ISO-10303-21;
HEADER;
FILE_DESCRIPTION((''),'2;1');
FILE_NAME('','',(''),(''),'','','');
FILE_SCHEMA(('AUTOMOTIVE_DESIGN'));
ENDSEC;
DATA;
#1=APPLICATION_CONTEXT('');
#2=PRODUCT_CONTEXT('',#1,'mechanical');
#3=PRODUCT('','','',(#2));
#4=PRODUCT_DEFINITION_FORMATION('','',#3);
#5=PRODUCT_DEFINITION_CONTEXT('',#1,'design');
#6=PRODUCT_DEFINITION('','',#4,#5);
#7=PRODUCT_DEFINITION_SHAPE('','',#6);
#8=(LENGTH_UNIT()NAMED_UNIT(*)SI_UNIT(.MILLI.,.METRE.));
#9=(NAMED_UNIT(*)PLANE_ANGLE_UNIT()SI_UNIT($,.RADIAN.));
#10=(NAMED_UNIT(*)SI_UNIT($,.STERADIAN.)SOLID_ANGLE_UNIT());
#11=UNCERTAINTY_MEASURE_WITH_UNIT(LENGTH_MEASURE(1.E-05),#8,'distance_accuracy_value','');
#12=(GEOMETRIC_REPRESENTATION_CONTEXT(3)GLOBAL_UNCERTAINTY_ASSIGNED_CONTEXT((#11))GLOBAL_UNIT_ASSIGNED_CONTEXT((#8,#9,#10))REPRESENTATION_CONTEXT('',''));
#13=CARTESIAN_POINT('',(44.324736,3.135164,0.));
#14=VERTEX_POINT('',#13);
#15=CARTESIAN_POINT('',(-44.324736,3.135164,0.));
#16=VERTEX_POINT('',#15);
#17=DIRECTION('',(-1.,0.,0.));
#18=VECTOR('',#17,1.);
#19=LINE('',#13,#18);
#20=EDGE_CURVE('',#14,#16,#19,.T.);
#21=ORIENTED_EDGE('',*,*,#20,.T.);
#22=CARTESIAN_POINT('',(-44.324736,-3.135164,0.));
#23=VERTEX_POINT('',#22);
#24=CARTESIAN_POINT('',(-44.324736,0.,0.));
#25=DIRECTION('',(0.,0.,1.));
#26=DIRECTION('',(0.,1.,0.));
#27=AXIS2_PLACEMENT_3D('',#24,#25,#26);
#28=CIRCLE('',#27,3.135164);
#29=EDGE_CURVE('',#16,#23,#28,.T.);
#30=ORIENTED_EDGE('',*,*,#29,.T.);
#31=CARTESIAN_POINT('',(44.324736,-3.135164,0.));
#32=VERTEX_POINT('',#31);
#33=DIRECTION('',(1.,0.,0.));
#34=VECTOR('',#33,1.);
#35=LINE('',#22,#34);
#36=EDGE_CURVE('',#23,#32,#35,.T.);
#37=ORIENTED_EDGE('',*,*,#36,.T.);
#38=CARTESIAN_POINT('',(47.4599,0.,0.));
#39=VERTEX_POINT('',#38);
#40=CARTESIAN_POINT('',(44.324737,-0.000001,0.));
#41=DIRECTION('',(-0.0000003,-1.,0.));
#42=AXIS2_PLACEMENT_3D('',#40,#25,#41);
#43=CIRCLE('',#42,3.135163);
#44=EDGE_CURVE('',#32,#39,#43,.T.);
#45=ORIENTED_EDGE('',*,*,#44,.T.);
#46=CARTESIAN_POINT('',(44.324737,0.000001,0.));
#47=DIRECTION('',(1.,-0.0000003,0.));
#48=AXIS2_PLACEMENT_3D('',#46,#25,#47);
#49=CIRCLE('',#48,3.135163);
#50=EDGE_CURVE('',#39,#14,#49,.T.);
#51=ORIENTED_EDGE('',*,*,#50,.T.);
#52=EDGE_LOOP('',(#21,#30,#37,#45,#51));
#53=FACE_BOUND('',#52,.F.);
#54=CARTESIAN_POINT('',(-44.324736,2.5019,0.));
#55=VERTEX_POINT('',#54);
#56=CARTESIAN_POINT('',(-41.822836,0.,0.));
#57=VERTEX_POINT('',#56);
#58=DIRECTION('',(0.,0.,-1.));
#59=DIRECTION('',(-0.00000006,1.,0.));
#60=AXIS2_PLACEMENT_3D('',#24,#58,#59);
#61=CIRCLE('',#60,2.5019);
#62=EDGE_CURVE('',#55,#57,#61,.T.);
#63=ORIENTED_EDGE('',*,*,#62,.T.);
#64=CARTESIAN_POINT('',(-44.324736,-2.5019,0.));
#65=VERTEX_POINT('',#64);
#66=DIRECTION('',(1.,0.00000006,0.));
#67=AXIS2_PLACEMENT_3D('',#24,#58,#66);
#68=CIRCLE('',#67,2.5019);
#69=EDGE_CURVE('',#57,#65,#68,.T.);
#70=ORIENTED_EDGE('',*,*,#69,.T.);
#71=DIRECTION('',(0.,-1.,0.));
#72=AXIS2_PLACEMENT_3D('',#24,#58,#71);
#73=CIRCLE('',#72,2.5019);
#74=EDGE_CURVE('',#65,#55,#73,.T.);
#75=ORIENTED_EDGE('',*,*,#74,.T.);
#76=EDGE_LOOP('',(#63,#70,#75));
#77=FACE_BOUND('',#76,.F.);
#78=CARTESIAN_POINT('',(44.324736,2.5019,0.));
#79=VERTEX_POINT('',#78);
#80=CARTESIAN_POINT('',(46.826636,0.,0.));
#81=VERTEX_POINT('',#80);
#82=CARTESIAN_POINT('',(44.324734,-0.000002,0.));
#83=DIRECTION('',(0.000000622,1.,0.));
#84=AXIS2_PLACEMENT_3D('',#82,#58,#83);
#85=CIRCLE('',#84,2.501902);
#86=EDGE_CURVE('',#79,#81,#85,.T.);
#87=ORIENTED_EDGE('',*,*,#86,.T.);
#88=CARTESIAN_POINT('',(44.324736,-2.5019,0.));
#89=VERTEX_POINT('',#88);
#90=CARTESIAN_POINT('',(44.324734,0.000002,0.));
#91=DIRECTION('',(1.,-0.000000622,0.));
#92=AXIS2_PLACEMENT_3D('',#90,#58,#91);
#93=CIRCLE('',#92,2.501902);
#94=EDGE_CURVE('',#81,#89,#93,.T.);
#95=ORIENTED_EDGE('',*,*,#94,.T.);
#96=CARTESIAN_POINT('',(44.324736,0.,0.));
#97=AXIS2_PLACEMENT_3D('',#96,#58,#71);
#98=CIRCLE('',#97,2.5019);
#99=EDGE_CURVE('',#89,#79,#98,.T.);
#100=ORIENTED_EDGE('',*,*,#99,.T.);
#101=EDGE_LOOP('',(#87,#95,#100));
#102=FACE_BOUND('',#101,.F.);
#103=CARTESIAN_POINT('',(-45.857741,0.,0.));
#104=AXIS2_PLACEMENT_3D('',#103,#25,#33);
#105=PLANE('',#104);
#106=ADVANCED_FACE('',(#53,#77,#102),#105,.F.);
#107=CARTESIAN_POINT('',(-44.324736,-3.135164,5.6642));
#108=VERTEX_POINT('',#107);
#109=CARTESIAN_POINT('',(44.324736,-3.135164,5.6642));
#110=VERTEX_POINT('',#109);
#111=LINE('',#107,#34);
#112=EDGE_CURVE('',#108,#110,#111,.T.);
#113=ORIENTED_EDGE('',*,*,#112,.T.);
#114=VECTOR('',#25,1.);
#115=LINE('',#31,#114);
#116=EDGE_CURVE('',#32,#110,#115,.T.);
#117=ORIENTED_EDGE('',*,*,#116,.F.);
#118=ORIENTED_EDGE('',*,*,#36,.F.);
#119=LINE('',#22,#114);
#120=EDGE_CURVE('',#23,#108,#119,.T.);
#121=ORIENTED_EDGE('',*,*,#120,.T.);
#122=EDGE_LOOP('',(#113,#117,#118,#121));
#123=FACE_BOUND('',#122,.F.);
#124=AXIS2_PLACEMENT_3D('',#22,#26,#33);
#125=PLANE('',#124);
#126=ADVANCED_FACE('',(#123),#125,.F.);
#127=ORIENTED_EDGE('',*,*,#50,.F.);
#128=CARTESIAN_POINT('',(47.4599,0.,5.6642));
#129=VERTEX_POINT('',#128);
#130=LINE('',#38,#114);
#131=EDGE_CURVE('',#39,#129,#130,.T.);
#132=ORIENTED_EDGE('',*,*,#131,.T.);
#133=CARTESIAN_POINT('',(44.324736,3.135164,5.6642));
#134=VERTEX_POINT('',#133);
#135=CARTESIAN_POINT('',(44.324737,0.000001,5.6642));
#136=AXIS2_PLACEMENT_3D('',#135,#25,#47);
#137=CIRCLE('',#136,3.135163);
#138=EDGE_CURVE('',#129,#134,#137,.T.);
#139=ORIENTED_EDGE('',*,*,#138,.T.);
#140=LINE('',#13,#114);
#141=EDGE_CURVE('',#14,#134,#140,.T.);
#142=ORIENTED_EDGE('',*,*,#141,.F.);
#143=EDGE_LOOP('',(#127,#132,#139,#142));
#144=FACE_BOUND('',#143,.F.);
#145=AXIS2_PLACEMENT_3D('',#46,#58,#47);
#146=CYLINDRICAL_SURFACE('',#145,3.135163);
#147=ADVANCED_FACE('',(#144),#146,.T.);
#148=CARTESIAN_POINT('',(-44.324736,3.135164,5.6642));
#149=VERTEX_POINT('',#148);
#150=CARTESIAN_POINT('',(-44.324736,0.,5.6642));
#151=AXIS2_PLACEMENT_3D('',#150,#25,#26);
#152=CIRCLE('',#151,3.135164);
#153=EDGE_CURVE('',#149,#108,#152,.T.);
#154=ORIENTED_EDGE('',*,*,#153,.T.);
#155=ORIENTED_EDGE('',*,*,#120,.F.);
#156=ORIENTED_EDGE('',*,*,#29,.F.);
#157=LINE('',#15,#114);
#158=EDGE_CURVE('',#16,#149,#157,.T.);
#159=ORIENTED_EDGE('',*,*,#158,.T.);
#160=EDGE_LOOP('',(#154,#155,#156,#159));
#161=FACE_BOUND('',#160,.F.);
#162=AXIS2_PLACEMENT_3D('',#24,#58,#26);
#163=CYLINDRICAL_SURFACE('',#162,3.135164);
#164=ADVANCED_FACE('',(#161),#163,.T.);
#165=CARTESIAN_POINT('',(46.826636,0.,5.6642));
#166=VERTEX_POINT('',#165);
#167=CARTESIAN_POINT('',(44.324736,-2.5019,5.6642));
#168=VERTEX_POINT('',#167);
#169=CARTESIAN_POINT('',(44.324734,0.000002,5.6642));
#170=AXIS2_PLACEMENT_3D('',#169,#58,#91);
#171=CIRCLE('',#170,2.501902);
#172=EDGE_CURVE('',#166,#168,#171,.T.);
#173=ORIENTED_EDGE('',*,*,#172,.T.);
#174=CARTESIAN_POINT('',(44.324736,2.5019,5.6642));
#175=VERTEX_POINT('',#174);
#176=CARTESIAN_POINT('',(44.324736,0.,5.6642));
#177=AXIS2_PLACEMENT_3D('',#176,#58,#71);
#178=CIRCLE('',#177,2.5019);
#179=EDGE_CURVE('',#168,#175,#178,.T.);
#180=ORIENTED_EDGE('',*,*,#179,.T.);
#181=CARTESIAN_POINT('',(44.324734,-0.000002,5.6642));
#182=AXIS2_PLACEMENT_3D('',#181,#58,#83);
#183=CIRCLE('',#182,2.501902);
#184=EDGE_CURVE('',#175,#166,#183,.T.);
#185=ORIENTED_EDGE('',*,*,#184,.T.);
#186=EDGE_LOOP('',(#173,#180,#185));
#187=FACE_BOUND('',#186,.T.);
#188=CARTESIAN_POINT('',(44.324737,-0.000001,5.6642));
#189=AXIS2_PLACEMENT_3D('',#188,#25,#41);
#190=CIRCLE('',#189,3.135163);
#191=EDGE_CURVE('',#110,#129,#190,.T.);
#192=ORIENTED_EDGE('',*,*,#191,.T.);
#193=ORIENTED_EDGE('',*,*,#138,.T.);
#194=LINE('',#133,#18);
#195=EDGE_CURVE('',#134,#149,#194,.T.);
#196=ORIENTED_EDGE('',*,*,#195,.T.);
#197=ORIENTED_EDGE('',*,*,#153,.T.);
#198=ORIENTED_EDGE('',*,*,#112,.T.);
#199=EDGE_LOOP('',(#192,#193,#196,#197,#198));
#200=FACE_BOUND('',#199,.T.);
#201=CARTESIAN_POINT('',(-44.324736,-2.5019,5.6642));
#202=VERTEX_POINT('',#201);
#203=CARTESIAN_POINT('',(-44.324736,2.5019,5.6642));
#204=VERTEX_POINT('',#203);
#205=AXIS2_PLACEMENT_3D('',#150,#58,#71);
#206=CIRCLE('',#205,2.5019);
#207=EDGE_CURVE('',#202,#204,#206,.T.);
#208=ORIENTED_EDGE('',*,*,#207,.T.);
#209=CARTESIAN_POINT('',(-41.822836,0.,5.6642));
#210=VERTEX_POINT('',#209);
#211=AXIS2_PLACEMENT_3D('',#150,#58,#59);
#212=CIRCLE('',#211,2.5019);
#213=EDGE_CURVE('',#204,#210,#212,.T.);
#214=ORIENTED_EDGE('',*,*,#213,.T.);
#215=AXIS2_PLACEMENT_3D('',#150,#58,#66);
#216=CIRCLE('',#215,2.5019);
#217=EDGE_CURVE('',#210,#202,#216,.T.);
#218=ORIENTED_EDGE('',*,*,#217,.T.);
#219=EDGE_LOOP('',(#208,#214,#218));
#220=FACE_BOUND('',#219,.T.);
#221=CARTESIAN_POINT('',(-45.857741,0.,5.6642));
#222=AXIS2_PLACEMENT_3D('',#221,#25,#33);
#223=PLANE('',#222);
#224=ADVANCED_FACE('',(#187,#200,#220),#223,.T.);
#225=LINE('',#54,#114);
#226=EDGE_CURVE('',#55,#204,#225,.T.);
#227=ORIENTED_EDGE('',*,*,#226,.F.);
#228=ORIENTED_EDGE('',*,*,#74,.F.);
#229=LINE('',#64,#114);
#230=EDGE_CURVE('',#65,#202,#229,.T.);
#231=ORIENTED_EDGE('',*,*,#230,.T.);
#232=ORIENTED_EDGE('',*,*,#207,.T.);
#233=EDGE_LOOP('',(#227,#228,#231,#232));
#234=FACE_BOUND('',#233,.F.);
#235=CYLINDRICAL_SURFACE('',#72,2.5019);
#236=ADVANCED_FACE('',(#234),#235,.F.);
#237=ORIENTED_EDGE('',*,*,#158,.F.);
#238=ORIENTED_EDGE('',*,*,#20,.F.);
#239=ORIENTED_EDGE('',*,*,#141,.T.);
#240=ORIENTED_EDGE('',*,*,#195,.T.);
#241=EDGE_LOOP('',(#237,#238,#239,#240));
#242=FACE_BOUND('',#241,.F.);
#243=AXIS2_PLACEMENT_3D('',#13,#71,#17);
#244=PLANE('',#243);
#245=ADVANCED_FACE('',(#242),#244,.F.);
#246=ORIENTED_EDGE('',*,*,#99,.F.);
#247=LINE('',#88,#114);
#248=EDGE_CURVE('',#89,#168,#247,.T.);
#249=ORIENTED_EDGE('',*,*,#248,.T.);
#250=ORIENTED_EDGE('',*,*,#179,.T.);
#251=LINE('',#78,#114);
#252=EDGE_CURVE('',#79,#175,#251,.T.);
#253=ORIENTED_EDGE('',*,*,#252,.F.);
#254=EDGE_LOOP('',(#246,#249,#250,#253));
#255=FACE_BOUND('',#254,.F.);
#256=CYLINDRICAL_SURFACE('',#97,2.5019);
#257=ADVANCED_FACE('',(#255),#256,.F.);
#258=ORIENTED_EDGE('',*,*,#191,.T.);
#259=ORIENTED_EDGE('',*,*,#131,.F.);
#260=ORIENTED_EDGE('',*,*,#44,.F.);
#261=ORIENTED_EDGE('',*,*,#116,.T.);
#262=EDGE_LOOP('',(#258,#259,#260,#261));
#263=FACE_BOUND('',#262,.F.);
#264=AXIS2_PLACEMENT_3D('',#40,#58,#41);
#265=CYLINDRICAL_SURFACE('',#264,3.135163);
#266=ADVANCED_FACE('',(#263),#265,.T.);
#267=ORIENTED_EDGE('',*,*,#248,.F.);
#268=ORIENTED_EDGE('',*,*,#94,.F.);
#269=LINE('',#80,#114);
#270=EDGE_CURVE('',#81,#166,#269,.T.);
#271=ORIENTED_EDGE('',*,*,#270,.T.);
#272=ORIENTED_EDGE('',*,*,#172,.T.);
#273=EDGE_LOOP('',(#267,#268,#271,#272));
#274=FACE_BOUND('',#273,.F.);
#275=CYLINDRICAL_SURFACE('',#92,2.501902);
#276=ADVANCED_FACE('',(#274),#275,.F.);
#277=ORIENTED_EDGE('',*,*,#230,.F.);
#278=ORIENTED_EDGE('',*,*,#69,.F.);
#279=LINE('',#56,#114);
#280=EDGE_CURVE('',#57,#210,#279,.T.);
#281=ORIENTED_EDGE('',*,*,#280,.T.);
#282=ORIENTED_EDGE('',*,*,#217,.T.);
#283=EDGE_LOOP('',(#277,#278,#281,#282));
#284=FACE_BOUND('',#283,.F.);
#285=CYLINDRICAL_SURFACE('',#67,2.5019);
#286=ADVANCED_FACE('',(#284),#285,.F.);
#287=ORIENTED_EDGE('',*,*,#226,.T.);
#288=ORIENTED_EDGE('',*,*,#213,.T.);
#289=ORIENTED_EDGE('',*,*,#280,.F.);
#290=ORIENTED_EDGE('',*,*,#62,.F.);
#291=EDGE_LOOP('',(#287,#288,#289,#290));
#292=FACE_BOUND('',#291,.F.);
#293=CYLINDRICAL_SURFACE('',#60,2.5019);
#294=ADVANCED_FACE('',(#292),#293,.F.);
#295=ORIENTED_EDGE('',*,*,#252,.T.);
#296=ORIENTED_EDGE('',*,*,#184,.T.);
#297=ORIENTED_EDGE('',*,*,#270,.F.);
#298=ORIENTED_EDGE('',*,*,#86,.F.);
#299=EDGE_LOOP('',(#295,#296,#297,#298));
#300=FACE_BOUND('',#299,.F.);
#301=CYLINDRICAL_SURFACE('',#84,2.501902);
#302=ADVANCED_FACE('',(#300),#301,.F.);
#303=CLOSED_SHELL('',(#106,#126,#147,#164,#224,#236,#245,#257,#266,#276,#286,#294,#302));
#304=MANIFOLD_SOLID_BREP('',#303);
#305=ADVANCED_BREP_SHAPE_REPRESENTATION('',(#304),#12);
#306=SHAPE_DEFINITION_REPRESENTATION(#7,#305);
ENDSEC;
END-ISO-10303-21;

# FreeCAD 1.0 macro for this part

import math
import FreeCAD as App
import Part
import Sketcher
from FreeCAD import Vector
Q = App.Units.Quantity

doc = App.newDocument("Part")
body = doc.addObject("PartDesign::Body", "Body")

sketch1 = body.newObject("Sketcher::SketchObject", "Sketch")
sketch1.AttachmentSupport = (doc.getObject("XY_Plane"), [""])
sketch1.MapMode = "FlatFace"
sketch1.addGeometry([
    Part.ArcOfCircle(Part.Circle(Vector(-44.324736, 0, 0), Vector(0, 0, 1), 3.135164), math.radians(90), math.radians(270)),
    Part.LineSegment(Vector(-44.324736, -3.135164, 0), Vector(44.324736, -3.135164, 0)),
    Part.ArcOfCircle(Part.Circle(Vector(44.324737, -0.000001, 0), Vector(0, 0, 1), 3.135163), math.radians(-90.000017), math.radians(0.000017)),
    Part.ArcOfCircle(Part.Circle(Vector(44.324737, 0.000001, 0), Vector(0, 0, 1), 3.135163), math.radians(-0.000017), math.radians(90.000017)),
    Part.LineSegment(Vector(44.324736, 3.135164, 0), Vector(-44.324736, 3.135164, 0)),
    Part.ArcOfCircle(Part.Circle(Vector(-44.324736, 0, 0), Vector(0, 0, 1), 2.5019), math.radians(90), math.radians(270)),
    Part.ArcOfCircle(Part.Circle(Vector(-44.324736, 0, 0), Vector(0, 0, 1), 2.5019), math.radians(-0.000003), math.radians(90.000003)),
    Part.ArcOfCircle(Part.Circle(Vector(-44.324736, 0, 0), Vector(0, 0, 1), 2.5019), math.radians(-90.000003), math.radians(0.000003)),
    Part.ArcOfCircle(Part.Circle(Vector(44.324736, 0, 0), Vector(0, 0, 1), 2.5019), math.radians(90), math.radians(270)),
    Part.ArcOfCircle(Part.Circle(Vector(44.324734, -0.000002, 0), Vector(0, 0, 1), 2.501902), math.radians(0.000036), math.radians(89.999964)),
    Part.ArcOfCircle(Part.Circle(Vector(44.324734, 0.000002, 0), Vector(0, 0, 1), 2.501902), math.radians(-89.999964), math.radians(-0.000036)),
], False)
sketch1.addConstraint([
    Sketcher.Constraint("Tangent", 0, 2, 1, 1),
    Sketcher.Constraint("Tangent", 1, 2, 2, 1),
    Sketcher.Constraint("Tangent", 2, 2, 3, 1),
    Sketcher.Constraint("Tangent", 3, 2, 4, 1),
    Sketcher.Constraint("Tangent", 4, 2, 0, 1),
    Sketcher.Constraint("Tangent", 5, 1, 6, 2),
    Sketcher.Constraint("Tangent", 6, 1, 7, 2),
    Sketcher.Constraint("Tangent", 7, 1, 5, 2),
    Sketcher.Constraint("Tangent", 8, 1, 9, 2),
    Sketcher.Constraint("Tangent", 9, 1, 10, 2),
    Sketcher.Constraint("Tangent", 10, 1, 8, 2),
    Sketcher.Constraint("Horizontal", 1),
    Sketcher.Constraint("Horizontal", 4),
    Sketcher.Constraint("Coincident", 5, 3, 0, 3),
    Sketcher.Constraint("Coincident", 8, 3, 2, 3),
    Sketcher.Constraint("Equal", 0, 2),
    Sketcher.Constraint("Equal", 7, 8),
    Sketcher.Constraint("Symmetric", 0, 3, 2, 3, -1, 1),
    Sketcher.Constraint("PointOnObject", 2, 2, -1),
    Sketcher.Constraint("PointOnObject", 6, 1, -1),
    Sketcher.Constraint("PointOnObject", 9, 1, -1),
    Sketcher.Constraint("Vertical", 4, 2, 5, 1),
    Sketcher.Constraint("Vertical", 5, 1, 7, 1),
    Sketcher.Constraint("Vertical", 3, 2, 8, 1),
    Sketcher.Constraint("Vertical", 8, 1, 10, 1),
    Sketcher.Constraint("Radius", 5, Q("0.0985 in")),
    Sketcher.Constraint("DistanceX", -1, 1, 2, 2, Q("1.8685 in")),
    Sketcher.Constraint("Radius", 0, Q("3.135164 mm")),
])
pad1 = body.newObject("PartDesign::Pad", "Pad")
pad1.Profile = sketch1
pad1.Length = Q("0.223 in")

doc.recompute()
